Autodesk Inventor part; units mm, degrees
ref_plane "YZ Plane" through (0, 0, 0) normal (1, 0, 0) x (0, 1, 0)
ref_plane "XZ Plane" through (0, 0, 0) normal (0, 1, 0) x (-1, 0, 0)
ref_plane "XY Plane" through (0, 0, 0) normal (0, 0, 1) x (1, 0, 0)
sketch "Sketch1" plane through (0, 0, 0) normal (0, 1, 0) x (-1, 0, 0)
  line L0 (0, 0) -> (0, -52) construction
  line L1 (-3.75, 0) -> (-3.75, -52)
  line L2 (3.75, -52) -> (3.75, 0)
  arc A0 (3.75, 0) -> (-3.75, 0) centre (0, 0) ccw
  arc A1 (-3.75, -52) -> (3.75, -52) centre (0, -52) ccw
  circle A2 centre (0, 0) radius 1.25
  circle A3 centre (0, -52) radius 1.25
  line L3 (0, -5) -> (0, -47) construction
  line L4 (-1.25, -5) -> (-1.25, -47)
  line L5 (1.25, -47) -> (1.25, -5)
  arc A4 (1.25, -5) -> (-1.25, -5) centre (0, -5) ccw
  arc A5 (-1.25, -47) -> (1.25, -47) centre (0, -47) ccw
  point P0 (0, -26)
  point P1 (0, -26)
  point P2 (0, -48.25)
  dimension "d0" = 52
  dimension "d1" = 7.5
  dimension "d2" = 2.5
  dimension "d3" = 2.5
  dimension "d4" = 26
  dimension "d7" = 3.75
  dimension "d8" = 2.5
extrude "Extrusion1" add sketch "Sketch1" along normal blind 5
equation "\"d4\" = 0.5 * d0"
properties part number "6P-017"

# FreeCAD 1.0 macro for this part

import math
import FreeCAD as App
import Part
import Sketcher

doc = App.newDocument("Part")
body = doc.addObject("PartDesign::Body", "Body")

# Sketch on XZ plane
sketch1 = body.newObject("Sketcher::SketchObject", "Sketch")
sketch1.AttachmentSupport = (doc.getObject("XZ_Plane"), [""])
sketch1.MapMode = "FlatFace"
sketch1.addGeometry([
    Part.ArcOfCircle(Part.Circle(App.Vector(0, 0, 0), App.Vector(0, 0, 1), 3.8), math.radians(0), math.radians(180)),  # 0
    Part.LineSegment(App.Vector(3.8, 0, 0), App.Vector(3.8, -52, 0)),  # 1
    Part.ArcOfCircle(Part.Circle(App.Vector(0, -52, 0), App.Vector(0, 0, 1), 3.8), math.radians(180), math.radians(360)),  # 2
    Part.LineSegment(App.Vector(-3.8, -52, 0), App.Vector(-3.8, 0, 0)),  # 3
    Part.Circle(App.Vector(0, -52, 0), App.Vector(0, 0, 1), 1.2),  # 4
    Part.LineSegment(App.Vector(1.2, -47, 0), App.Vector(1.2, -5, 0)),  # 5
    Part.ArcOfCircle(Part.Circle(App.Vector(0, -5, 0), App.Vector(0, 0, 1), 1.2), math.radians(0), math.radians(180)),  # 6
    Part.LineSegment(App.Vector(-1.2, -5, 0), App.Vector(-1.2, -47, 0)),  # 7
    Part.ArcOfCircle(Part.Circle(App.Vector(0, -47, 0), App.Vector(0, 0, 1), 1.2), math.radians(180), math.radians(360)),  # 8
    Part.Circle(App.Vector(0, 0, 0), App.Vector(0, 0, 1), 1.2),  # 9
], False)
sketch1.addConstraint([
    Sketcher.Constraint("Tangent", 0, 1, 1, 1),
    Sketcher.Constraint("Tangent", 1, 2, 2, 2),
    Sketcher.Constraint("Tangent", 2, 1, 3, 1),
    Sketcher.Constraint("Tangent", 3, 2, 0, 2),
    Sketcher.Constraint("Tangent", 5, 2, 6, 1),
    Sketcher.Constraint("Tangent", 6, 2, 7, 1),
    Sketcher.Constraint("Tangent", 7, 2, 8, 1),
    Sketcher.Constraint("Tangent", 8, 2, 5, 1),
    Sketcher.Constraint("Vertical", 1),
    Sketcher.Constraint("Vertical", 3),
    Sketcher.Constraint("Vertical", 5),
    Sketcher.Constraint("Vertical", 7),
    Sketcher.Constraint("Coincident", 0, 3, -1, 1),
    Sketcher.Constraint("Coincident", 9, 3, -1, 1),
    Sketcher.Constraint("Coincident", 4, 3, 2, 3),
    Sketcher.Constraint("Equal", 4, 6),
    Sketcher.Constraint("Equal", 8, 9),
    Sketcher.Constraint("PointOnObject", 6, 3, -2),
    Sketcher.Constraint("Diameter", 4, 2.5),
    Sketcher.Constraint("DistanceY", 1, 2, 1, 1, 52.0),
    Sketcher.Constraint("Radius", 0, 3.75),
    Sketcher.Constraint("DistanceY", 5, 1, 5, 2, 42.0),
    Sketcher.Constraint("DistanceY", 6, 3, -1, 1, 5.0),
])
pad1 = body.newObject("PartDesign::Pad", "Pad")
pad1.Profile = sketch1
pad1.Length = 5
pad1.Reversed = True

doc.recompute()
